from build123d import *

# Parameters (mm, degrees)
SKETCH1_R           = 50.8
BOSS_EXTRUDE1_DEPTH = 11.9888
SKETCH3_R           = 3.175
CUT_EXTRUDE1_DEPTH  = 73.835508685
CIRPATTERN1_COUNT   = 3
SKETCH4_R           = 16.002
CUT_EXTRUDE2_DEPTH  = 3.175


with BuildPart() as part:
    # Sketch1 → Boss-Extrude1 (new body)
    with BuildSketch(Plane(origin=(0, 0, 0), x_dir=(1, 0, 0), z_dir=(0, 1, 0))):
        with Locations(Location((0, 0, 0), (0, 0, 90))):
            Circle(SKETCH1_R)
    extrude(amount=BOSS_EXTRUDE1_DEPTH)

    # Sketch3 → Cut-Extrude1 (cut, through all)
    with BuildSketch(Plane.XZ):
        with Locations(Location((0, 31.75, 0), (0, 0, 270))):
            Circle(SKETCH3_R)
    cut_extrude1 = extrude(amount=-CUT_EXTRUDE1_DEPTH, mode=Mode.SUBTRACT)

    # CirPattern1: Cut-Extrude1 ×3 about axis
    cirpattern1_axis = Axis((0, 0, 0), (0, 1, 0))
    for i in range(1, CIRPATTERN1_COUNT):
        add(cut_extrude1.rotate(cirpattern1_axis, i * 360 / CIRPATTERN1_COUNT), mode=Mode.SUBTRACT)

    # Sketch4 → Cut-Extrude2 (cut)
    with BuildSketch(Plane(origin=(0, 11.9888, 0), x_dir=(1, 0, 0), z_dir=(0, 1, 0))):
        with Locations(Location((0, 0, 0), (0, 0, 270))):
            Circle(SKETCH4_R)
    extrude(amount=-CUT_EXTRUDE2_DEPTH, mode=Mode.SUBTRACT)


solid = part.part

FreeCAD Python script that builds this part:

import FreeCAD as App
import Part
import Sketcher

V = App.Vector
Q = App.Units.Quantity

doc = App.newDocument("Part")
body = doc.addObject("PartDesign::Body", "Body")

# Sketch on XZ plane
sketch1 = body.newObject("Sketcher::SketchObject", "Sketch")
sketch1.AttachmentSupport = (doc.getObject("XZ_Plane"), [""])
sketch1.MapMode = "FlatFace"
sketch1.addGeometry(Part.Circle(V(0, 0, 0), V(0, 0, 1), 51), False)
sketch1.addConstraint([
    Sketcher.Constraint("Coincident", 0, 3, -1, 1),
    Sketcher.Constraint("Diameter", 0, Q("4 in")),
])
pad1 = body.newObject("PartDesign::Pad", "Pad")
pad1.Profile = sketch1
pad1.Length = Q("0.472 in")
pad1.Reversed = True

# Sketch on XZ plane
sketch2 = body.newObject("Sketcher::SketchObject", "Sketch001")
sketch2.AttachmentSupport = (doc.getObject("XZ_Plane"), [""])
sketch2.MapMode = "FlatFace"
sketch2.addGeometry(Part.Circle(V(0, 31.8, 0), V(0, 0, 1), 3.2), False)
sketch2.addConstraint([
    Sketcher.Constraint("PointOnObject", 0, 3, -2),
    Sketcher.Constraint("Diameter", 0, Q("0.25 in")),
    Sketcher.Constraint("DistanceY", -1, 1, 0, 3, Q("1.25 in")),
])
pocket1 = body.newObject("PartDesign::Pocket", "Pocket")
pocket1.Profile = sketch2
pocket1.Type = "ThroughAll"
doc.recompute()

polarpattern = body.newObject("PartDesign::PolarPattern", "PolarPattern")
polarpattern.Originals = [pocket1]
polarpattern.Axis = (doc.getObject("Y_Axis"), [""])
polarpattern.Angle = 360
polarpattern.Occurrences = 3
body.Tip = polarpattern

# Sketch on XZ plane
sketch3 = body.newObject("Sketcher::SketchObject", "Sketch002")
sketch3.AttachmentSupport = (doc.getObject("XZ_Plane"), [""])
sketch3.MapMode = "FlatFace"
sketch3.AttachmentOffset = App.Placement(V(0, 0, -0.472 * 25.4), App.Rotation())
sketch3.addGeometry(Part.Circle(V(0, 0, 0), V(0, 0, 1), 16), False)
sketch3.addConstraint([
    Sketcher.Constraint("Coincident", 0, 3, -1, 1),
    Sketcher.Constraint("Diameter", 0, Q("1.26 in")),
])
pocket2 = body.newObject("PartDesign::Pocket", "Pocket001")
pocket2.Profile = sketch3
pocket2.Length = Q("0.125 in")
pocket2.Reversed = True

doc.recompute()
